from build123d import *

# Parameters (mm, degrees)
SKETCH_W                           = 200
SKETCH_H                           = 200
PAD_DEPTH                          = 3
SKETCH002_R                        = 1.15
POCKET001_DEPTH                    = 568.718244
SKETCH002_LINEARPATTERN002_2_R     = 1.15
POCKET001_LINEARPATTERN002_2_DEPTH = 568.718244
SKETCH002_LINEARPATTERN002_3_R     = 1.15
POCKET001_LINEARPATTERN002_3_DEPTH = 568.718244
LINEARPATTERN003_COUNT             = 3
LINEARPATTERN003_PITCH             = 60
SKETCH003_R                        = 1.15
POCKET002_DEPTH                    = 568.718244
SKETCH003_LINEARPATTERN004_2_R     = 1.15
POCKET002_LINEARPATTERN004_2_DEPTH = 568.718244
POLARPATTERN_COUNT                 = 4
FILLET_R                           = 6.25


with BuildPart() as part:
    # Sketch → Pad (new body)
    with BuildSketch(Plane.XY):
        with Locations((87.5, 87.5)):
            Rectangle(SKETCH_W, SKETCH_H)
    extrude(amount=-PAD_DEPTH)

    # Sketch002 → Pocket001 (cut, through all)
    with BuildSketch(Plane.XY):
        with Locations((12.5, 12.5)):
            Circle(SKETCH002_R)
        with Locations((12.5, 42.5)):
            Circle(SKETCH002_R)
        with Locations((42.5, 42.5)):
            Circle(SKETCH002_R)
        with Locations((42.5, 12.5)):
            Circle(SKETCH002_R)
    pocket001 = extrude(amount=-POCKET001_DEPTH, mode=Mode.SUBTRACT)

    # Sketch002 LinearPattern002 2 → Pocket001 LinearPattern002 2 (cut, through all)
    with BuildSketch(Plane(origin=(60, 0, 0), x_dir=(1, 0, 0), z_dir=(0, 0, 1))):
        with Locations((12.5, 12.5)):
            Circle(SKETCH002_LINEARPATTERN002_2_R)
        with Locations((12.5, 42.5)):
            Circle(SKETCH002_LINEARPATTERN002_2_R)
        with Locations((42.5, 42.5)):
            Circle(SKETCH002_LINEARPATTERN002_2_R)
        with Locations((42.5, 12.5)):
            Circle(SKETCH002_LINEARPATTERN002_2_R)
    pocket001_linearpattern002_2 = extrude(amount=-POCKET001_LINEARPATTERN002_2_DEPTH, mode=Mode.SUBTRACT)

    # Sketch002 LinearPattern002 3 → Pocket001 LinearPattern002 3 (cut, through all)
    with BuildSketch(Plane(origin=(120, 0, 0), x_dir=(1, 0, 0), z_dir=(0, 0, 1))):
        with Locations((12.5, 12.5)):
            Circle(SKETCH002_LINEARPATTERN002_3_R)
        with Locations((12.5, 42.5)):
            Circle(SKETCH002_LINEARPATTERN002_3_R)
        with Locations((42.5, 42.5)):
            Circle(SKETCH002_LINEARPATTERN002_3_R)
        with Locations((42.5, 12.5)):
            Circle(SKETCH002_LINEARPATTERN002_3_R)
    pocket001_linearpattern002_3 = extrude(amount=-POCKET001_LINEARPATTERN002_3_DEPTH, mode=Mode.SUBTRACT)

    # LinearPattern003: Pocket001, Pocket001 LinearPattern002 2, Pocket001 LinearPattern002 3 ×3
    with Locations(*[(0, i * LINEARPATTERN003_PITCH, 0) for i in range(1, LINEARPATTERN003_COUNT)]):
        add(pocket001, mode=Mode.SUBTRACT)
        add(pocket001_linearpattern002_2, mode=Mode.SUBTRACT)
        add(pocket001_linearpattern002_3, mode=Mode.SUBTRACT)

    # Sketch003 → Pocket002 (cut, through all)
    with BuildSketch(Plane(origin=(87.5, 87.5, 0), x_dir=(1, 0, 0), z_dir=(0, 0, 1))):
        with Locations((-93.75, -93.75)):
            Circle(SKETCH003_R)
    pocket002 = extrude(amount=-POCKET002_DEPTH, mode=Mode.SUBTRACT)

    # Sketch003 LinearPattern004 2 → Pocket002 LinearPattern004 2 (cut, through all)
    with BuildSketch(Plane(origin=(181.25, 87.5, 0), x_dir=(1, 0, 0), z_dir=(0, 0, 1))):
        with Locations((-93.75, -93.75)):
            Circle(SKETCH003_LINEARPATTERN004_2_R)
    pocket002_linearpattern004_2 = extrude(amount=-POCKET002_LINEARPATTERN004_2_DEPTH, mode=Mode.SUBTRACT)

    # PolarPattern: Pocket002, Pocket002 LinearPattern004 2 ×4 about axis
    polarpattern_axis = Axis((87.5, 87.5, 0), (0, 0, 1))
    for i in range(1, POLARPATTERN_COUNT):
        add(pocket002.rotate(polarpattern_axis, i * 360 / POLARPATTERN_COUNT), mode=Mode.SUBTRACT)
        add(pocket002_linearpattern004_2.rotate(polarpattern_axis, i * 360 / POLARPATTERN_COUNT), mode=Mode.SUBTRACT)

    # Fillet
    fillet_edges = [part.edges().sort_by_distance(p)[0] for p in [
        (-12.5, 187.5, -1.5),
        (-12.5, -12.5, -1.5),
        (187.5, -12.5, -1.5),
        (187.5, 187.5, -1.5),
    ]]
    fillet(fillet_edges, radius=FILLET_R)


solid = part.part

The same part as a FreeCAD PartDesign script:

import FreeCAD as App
import Part
import Sketcher
from FreeCAD import Vector


def edges_at(feature, points):
    """Names of the edges that pass closest to the given points."""
    edges = feature.Shape.Edges
    near = lambda p: min(range(len(edges)), key=lambda i: edges[i].distToShape(Part.Vertex(*p))[0])
    return sorted({f"Edge{near(p) + 1}" for p in points})

doc = App.newDocument("Part")
body = doc.addObject("PartDesign::Body", "Body")

sketch1 = doc.addObject("Sketcher::SketchObject", "Sketch")
body.addObject(sketch1)
sketch1.AttachmentSupport = (doc.XY_Plane, [""])
sketch1.MapMode = "FlatFace"
sketch1.addGeometry([
    Part.LineSegment(Vector(-12, 188, 0), Vector(-12, -12, 0)),
    Part.LineSegment(Vector(-12, -12, 0), Vector(188, -12, 0)),
    Part.LineSegment(Vector(188, -12, 0), Vector(188, 188, 0)),
    Part.LineSegment(Vector(188, 188, 0), Vector(-12, 188, 0)),
], False)
sketch1.addConstraint([
    Sketcher.Constraint("Coincident", 0, 2, 1, 1),
    Sketcher.Constraint("Coincident", 1, 2, 2, 1),
    Sketcher.Constraint("Coincident", 2, 2, 3, 1),
    Sketcher.Constraint("Coincident", 3, 2, 0, 1),
    Sketcher.Constraint("Vertical", 0),
    Sketcher.Constraint("Horizontal", 1),
    Sketcher.Constraint("Vertical", 2),
    Sketcher.Constraint("Horizontal", 3),
    Sketcher.Constraint("Equal", 3, 0),
    Sketcher.Constraint("DistanceX", 1, 1, 1, 2, 200.0),
    Sketcher.Constraint("DistanceX", 0, 2, -1, 1, 12.5),
    Sketcher.Constraint("DistanceY", 0, 2, -1, 1, 12.5),
])
pad1 = doc.addObject("PartDesign::Pad", "Pad")
body.addObject(pad1)
pad1.Profile = sketch1
pad1.Length = 3
pad1.Reversed = True

sketch2 = doc.addObject("Sketcher::SketchObject", "Sketch001")
body.addObject(sketch2)
sketch2.AttachmentSupport = (doc.XY_Plane, [""])
sketch2.MapMode = "FlatFace"
sketch2.addGeometry([
    Part.Circle(Vector(12.5, 12.5, 0), Vector(0, 0, 1), 1.1),
    Part.Circle(Vector(12.5, 42.5, 0), Vector(0, 0, 1), 1.1),
    Part.Circle(Vector(42.5, 42.5, 0), Vector(0, 0, 1), 1.1),
    Part.Circle(Vector(42.5, 12.5, 0), Vector(0, 0, 1), 1.1),
], False)
sketch2.addConstraint([
    Sketcher.Constraint("Equal", 0, 1),
    Sketcher.Constraint("Equal", 1, 2),
    Sketcher.Constraint("Equal", 2, 3),
    Sketcher.Constraint("Horizontal", 1, 3, 2, 3),
    Sketcher.Constraint("Horizontal", 0, 3, 3, 3),
    Sketcher.Constraint("Vertical", 0, 3, 1, 3),
    Sketcher.Constraint("Vertical", 2, 3, 3, 3),
    Sketcher.Constraint("Diameter", 0, 2.3),
    Sketcher.Constraint("DistanceY", 0, 3, 1, 3, 30.0),
    Sketcher.Constraint("DistanceX", 1, 3, 2, 3, 30.0),
    Sketcher.Constraint("DistanceX", -1, 1, 0, 3, 12.5),
    Sketcher.Constraint("DistanceY", -1, 1, 0, 3, 12.5),
])
pocket1 = doc.addObject("PartDesign::Pocket", "Pocket")
body.addObject(pocket1)
pocket1.Profile = sketch2
pocket1.Type = "ThroughAll"

sketch3 = doc.addObject("Sketcher::SketchObject", "Sketch002")
body.addObject(sketch3)
sketch3.AttachmentSupport = (doc.XY_Plane, [""])
sketch3.MapMode = "FlatFace"
sketch3.addGeometry([
    Part.Circle(Vector(72.5, 12.5, 0), Vector(0, 0, 1), 1.1),
    Part.Circle(Vector(72.5, 42.5, 0), Vector(0, 0, 1), 1.1),
    Part.Circle(Vector(102.5, 42.5, 0), Vector(0, 0, 1), 1.1),
    Part.Circle(Vector(102.5, 12.5, 0), Vector(0, 0, 1), 1.1),
], False)
sketch3.addConstraint([
    Sketcher.Constraint("Equal", 0, 1),
    Sketcher.Constraint("Equal", 1, 2),
    Sketcher.Constraint("Equal", 2, 3),
    Sketcher.Constraint("Horizontal", 1, 3, 2, 3),
    Sketcher.Constraint("Horizontal", 0, 3, 3, 3),
    Sketcher.Constraint("Vertical", 0, 3, 1, 3),
    Sketcher.Constraint("Vertical", 2, 3, 3, 3),
    Sketcher.Constraint("Diameter", 0, 2.3),
    Sketcher.Constraint("DistanceY", 0, 3, 1, 3, 30.0),
    Sketcher.Constraint("DistanceX", 1, 3, 2, 3, 30.0),
    Sketcher.Constraint("DistanceX", -1, 1, 0, 3, 72.5),
    Sketcher.Constraint("DistanceY", -1, 1, 0, 3, 12.5),
])
pocket2 = doc.addObject("PartDesign::Pocket", "Pocket001")
body.addObject(pocket2)
pocket2.Profile = sketch3
pocket2.Type = "ThroughAll"

sketch4 = doc.addObject("Sketcher::SketchObject", "Sketch003")
body.addObject(sketch4)
sketch4.AttachmentSupport = (doc.XY_Plane, [""])
sketch4.MapMode = "FlatFace"
sketch4.addGeometry([
    Part.Circle(Vector(132.5, 12.5, 0), Vector(0, 0, 1), 1.1),
    Part.Circle(Vector(132.5, 42.5, 0), Vector(0, 0, 1), 1.1),
    Part.Circle(Vector(162.5, 42.5, 0), Vector(0, 0, 1), 1.1),
    Part.Circle(Vector(162.5, 12.5, 0), Vector(0, 0, 1), 1.1),
], False)
sketch4.addConstraint([
    Sketcher.Constraint("Equal", 0, 1),
    Sketcher.Constraint("Equal", 1, 2),
    Sketcher.Constraint("Equal", 2, 3),
    Sketcher.Constraint("Horizontal", 1, 3, 2, 3),
    Sketcher.Constraint("Horizontal", 0, 3, 3, 3),
    Sketcher.Constraint("Vertical", 0, 3, 1, 3),
    Sketcher.Constraint("Vertical", 2, 3, 3, 3),
    Sketcher.Constraint("Diameter", 0, 2.3),
    Sketcher.Constraint("DistanceY", 0, 3, 1, 3, 30.0),
    Sketcher.Constraint("DistanceX", 1, 3, 2, 3, 30.0),
    Sketcher.Constraint("DistanceX", -1, 1, 0, 3, 132.5),
    Sketcher.Constraint("DistanceY", -1, 1, 0, 3, 12.5),
])
pocket3 = doc.addObject("PartDesign::Pocket", "Pocket002")
body.addObject(pocket3)
pocket3.Profile = sketch4
pocket3.Type = "ThroughAll"
doc.recompute()

linearpattern = doc.addObject("PartDesign::LinearPattern", "LinearPattern")
body.addObject(linearpattern)
linearpattern.Originals = [pocket1, pocket2, pocket3]
linearpattern.Direction = (doc.Y_Axis, [""])
linearpattern.Mode = "offset"
linearpattern.Offset = 60
linearpattern.Occurrences = 3
body.Tip = linearpattern

sketch5 = doc.addObject("Sketcher::SketchObject", "Sketch004")
body.addObject(sketch5)
sketch5.AttachmentSupport = (doc.XY_Plane, [""])
sketch5.MapMode = "FlatFace"
sketch5.addGeometry(Part.Circle(Vector(-6.2, -6.2, 0), Vector(0, 0, 1), 1.1), False)
sketch5.addConstraint([
    Sketcher.Constraint("Diameter", 0, 2.3),
    Sketcher.Constraint("DistanceX", 0, 3, -1, 1, 6.25),
    Sketcher.Constraint("DistanceY", 0, 3, -1, 1, 6.25),
])
pocket4 = doc.addObject("PartDesign::Pocket", "Pocket003")
body.addObject(pocket4)
pocket4.Profile = sketch5
pocket4.Type = "ThroughAll"

sketch6 = doc.addObject("Sketcher::SketchObject", "Sketch005")
body.addObject(sketch6)
sketch6.AttachmentSupport = (doc.XY_Plane, [""])
sketch6.MapMode = "FlatFace"
sketch6.addGeometry(Part.Circle(Vector(87.5, -6.2, 0), Vector(0, 0, 1), 1.1), False)
sketch6.addConstraint([
    Sketcher.Constraint("Diameter", 0, 2.3),
    Sketcher.Constraint("DistanceX", -1, 1, 0, 3, 87.5),
    Sketcher.Constraint("DistanceY", 0, 3, -1, 1, 6.25),
])
pocket5 = doc.addObject("PartDesign::Pocket", "Pocket004")
body.addObject(pocket5)
pocket5.Profile = sketch6
pocket5.Type = "ThroughAll"
doc.recompute()

datumline = doc.addObject("PartDesign::Line", "DatumLine")
body.addObject(datumline)
datumline.Placement = App.Placement(Vector(87.5, 87.5, 0), App.Rotation(Vector(0, 0, 1), Vector(0, 0, 1)))
polarpattern = doc.addObject("PartDesign::PolarPattern", "PolarPattern")
body.addObject(polarpattern)
polarpattern.Originals = [pocket4, pocket5]
polarpattern.Axis = (datumline, [""])
polarpattern.Angle = 360
polarpattern.Occurrences = 4
body.Tip = polarpattern
doc.recompute()

fillet = doc.addObject("PartDesign::Fillet", "Fillet")
body.addObject(fillet)
fillet.Base = (polarpattern, edges_at(polarpattern, [
    (-12.5, 187.5, -1.5),
    (-12.5, -12.5, -1.5),
    (187.5, -12.5, -1.5),
    (187.5, 187.5, -1.5),
]))
fillet.Radius = 6.25

doc.recompute()
